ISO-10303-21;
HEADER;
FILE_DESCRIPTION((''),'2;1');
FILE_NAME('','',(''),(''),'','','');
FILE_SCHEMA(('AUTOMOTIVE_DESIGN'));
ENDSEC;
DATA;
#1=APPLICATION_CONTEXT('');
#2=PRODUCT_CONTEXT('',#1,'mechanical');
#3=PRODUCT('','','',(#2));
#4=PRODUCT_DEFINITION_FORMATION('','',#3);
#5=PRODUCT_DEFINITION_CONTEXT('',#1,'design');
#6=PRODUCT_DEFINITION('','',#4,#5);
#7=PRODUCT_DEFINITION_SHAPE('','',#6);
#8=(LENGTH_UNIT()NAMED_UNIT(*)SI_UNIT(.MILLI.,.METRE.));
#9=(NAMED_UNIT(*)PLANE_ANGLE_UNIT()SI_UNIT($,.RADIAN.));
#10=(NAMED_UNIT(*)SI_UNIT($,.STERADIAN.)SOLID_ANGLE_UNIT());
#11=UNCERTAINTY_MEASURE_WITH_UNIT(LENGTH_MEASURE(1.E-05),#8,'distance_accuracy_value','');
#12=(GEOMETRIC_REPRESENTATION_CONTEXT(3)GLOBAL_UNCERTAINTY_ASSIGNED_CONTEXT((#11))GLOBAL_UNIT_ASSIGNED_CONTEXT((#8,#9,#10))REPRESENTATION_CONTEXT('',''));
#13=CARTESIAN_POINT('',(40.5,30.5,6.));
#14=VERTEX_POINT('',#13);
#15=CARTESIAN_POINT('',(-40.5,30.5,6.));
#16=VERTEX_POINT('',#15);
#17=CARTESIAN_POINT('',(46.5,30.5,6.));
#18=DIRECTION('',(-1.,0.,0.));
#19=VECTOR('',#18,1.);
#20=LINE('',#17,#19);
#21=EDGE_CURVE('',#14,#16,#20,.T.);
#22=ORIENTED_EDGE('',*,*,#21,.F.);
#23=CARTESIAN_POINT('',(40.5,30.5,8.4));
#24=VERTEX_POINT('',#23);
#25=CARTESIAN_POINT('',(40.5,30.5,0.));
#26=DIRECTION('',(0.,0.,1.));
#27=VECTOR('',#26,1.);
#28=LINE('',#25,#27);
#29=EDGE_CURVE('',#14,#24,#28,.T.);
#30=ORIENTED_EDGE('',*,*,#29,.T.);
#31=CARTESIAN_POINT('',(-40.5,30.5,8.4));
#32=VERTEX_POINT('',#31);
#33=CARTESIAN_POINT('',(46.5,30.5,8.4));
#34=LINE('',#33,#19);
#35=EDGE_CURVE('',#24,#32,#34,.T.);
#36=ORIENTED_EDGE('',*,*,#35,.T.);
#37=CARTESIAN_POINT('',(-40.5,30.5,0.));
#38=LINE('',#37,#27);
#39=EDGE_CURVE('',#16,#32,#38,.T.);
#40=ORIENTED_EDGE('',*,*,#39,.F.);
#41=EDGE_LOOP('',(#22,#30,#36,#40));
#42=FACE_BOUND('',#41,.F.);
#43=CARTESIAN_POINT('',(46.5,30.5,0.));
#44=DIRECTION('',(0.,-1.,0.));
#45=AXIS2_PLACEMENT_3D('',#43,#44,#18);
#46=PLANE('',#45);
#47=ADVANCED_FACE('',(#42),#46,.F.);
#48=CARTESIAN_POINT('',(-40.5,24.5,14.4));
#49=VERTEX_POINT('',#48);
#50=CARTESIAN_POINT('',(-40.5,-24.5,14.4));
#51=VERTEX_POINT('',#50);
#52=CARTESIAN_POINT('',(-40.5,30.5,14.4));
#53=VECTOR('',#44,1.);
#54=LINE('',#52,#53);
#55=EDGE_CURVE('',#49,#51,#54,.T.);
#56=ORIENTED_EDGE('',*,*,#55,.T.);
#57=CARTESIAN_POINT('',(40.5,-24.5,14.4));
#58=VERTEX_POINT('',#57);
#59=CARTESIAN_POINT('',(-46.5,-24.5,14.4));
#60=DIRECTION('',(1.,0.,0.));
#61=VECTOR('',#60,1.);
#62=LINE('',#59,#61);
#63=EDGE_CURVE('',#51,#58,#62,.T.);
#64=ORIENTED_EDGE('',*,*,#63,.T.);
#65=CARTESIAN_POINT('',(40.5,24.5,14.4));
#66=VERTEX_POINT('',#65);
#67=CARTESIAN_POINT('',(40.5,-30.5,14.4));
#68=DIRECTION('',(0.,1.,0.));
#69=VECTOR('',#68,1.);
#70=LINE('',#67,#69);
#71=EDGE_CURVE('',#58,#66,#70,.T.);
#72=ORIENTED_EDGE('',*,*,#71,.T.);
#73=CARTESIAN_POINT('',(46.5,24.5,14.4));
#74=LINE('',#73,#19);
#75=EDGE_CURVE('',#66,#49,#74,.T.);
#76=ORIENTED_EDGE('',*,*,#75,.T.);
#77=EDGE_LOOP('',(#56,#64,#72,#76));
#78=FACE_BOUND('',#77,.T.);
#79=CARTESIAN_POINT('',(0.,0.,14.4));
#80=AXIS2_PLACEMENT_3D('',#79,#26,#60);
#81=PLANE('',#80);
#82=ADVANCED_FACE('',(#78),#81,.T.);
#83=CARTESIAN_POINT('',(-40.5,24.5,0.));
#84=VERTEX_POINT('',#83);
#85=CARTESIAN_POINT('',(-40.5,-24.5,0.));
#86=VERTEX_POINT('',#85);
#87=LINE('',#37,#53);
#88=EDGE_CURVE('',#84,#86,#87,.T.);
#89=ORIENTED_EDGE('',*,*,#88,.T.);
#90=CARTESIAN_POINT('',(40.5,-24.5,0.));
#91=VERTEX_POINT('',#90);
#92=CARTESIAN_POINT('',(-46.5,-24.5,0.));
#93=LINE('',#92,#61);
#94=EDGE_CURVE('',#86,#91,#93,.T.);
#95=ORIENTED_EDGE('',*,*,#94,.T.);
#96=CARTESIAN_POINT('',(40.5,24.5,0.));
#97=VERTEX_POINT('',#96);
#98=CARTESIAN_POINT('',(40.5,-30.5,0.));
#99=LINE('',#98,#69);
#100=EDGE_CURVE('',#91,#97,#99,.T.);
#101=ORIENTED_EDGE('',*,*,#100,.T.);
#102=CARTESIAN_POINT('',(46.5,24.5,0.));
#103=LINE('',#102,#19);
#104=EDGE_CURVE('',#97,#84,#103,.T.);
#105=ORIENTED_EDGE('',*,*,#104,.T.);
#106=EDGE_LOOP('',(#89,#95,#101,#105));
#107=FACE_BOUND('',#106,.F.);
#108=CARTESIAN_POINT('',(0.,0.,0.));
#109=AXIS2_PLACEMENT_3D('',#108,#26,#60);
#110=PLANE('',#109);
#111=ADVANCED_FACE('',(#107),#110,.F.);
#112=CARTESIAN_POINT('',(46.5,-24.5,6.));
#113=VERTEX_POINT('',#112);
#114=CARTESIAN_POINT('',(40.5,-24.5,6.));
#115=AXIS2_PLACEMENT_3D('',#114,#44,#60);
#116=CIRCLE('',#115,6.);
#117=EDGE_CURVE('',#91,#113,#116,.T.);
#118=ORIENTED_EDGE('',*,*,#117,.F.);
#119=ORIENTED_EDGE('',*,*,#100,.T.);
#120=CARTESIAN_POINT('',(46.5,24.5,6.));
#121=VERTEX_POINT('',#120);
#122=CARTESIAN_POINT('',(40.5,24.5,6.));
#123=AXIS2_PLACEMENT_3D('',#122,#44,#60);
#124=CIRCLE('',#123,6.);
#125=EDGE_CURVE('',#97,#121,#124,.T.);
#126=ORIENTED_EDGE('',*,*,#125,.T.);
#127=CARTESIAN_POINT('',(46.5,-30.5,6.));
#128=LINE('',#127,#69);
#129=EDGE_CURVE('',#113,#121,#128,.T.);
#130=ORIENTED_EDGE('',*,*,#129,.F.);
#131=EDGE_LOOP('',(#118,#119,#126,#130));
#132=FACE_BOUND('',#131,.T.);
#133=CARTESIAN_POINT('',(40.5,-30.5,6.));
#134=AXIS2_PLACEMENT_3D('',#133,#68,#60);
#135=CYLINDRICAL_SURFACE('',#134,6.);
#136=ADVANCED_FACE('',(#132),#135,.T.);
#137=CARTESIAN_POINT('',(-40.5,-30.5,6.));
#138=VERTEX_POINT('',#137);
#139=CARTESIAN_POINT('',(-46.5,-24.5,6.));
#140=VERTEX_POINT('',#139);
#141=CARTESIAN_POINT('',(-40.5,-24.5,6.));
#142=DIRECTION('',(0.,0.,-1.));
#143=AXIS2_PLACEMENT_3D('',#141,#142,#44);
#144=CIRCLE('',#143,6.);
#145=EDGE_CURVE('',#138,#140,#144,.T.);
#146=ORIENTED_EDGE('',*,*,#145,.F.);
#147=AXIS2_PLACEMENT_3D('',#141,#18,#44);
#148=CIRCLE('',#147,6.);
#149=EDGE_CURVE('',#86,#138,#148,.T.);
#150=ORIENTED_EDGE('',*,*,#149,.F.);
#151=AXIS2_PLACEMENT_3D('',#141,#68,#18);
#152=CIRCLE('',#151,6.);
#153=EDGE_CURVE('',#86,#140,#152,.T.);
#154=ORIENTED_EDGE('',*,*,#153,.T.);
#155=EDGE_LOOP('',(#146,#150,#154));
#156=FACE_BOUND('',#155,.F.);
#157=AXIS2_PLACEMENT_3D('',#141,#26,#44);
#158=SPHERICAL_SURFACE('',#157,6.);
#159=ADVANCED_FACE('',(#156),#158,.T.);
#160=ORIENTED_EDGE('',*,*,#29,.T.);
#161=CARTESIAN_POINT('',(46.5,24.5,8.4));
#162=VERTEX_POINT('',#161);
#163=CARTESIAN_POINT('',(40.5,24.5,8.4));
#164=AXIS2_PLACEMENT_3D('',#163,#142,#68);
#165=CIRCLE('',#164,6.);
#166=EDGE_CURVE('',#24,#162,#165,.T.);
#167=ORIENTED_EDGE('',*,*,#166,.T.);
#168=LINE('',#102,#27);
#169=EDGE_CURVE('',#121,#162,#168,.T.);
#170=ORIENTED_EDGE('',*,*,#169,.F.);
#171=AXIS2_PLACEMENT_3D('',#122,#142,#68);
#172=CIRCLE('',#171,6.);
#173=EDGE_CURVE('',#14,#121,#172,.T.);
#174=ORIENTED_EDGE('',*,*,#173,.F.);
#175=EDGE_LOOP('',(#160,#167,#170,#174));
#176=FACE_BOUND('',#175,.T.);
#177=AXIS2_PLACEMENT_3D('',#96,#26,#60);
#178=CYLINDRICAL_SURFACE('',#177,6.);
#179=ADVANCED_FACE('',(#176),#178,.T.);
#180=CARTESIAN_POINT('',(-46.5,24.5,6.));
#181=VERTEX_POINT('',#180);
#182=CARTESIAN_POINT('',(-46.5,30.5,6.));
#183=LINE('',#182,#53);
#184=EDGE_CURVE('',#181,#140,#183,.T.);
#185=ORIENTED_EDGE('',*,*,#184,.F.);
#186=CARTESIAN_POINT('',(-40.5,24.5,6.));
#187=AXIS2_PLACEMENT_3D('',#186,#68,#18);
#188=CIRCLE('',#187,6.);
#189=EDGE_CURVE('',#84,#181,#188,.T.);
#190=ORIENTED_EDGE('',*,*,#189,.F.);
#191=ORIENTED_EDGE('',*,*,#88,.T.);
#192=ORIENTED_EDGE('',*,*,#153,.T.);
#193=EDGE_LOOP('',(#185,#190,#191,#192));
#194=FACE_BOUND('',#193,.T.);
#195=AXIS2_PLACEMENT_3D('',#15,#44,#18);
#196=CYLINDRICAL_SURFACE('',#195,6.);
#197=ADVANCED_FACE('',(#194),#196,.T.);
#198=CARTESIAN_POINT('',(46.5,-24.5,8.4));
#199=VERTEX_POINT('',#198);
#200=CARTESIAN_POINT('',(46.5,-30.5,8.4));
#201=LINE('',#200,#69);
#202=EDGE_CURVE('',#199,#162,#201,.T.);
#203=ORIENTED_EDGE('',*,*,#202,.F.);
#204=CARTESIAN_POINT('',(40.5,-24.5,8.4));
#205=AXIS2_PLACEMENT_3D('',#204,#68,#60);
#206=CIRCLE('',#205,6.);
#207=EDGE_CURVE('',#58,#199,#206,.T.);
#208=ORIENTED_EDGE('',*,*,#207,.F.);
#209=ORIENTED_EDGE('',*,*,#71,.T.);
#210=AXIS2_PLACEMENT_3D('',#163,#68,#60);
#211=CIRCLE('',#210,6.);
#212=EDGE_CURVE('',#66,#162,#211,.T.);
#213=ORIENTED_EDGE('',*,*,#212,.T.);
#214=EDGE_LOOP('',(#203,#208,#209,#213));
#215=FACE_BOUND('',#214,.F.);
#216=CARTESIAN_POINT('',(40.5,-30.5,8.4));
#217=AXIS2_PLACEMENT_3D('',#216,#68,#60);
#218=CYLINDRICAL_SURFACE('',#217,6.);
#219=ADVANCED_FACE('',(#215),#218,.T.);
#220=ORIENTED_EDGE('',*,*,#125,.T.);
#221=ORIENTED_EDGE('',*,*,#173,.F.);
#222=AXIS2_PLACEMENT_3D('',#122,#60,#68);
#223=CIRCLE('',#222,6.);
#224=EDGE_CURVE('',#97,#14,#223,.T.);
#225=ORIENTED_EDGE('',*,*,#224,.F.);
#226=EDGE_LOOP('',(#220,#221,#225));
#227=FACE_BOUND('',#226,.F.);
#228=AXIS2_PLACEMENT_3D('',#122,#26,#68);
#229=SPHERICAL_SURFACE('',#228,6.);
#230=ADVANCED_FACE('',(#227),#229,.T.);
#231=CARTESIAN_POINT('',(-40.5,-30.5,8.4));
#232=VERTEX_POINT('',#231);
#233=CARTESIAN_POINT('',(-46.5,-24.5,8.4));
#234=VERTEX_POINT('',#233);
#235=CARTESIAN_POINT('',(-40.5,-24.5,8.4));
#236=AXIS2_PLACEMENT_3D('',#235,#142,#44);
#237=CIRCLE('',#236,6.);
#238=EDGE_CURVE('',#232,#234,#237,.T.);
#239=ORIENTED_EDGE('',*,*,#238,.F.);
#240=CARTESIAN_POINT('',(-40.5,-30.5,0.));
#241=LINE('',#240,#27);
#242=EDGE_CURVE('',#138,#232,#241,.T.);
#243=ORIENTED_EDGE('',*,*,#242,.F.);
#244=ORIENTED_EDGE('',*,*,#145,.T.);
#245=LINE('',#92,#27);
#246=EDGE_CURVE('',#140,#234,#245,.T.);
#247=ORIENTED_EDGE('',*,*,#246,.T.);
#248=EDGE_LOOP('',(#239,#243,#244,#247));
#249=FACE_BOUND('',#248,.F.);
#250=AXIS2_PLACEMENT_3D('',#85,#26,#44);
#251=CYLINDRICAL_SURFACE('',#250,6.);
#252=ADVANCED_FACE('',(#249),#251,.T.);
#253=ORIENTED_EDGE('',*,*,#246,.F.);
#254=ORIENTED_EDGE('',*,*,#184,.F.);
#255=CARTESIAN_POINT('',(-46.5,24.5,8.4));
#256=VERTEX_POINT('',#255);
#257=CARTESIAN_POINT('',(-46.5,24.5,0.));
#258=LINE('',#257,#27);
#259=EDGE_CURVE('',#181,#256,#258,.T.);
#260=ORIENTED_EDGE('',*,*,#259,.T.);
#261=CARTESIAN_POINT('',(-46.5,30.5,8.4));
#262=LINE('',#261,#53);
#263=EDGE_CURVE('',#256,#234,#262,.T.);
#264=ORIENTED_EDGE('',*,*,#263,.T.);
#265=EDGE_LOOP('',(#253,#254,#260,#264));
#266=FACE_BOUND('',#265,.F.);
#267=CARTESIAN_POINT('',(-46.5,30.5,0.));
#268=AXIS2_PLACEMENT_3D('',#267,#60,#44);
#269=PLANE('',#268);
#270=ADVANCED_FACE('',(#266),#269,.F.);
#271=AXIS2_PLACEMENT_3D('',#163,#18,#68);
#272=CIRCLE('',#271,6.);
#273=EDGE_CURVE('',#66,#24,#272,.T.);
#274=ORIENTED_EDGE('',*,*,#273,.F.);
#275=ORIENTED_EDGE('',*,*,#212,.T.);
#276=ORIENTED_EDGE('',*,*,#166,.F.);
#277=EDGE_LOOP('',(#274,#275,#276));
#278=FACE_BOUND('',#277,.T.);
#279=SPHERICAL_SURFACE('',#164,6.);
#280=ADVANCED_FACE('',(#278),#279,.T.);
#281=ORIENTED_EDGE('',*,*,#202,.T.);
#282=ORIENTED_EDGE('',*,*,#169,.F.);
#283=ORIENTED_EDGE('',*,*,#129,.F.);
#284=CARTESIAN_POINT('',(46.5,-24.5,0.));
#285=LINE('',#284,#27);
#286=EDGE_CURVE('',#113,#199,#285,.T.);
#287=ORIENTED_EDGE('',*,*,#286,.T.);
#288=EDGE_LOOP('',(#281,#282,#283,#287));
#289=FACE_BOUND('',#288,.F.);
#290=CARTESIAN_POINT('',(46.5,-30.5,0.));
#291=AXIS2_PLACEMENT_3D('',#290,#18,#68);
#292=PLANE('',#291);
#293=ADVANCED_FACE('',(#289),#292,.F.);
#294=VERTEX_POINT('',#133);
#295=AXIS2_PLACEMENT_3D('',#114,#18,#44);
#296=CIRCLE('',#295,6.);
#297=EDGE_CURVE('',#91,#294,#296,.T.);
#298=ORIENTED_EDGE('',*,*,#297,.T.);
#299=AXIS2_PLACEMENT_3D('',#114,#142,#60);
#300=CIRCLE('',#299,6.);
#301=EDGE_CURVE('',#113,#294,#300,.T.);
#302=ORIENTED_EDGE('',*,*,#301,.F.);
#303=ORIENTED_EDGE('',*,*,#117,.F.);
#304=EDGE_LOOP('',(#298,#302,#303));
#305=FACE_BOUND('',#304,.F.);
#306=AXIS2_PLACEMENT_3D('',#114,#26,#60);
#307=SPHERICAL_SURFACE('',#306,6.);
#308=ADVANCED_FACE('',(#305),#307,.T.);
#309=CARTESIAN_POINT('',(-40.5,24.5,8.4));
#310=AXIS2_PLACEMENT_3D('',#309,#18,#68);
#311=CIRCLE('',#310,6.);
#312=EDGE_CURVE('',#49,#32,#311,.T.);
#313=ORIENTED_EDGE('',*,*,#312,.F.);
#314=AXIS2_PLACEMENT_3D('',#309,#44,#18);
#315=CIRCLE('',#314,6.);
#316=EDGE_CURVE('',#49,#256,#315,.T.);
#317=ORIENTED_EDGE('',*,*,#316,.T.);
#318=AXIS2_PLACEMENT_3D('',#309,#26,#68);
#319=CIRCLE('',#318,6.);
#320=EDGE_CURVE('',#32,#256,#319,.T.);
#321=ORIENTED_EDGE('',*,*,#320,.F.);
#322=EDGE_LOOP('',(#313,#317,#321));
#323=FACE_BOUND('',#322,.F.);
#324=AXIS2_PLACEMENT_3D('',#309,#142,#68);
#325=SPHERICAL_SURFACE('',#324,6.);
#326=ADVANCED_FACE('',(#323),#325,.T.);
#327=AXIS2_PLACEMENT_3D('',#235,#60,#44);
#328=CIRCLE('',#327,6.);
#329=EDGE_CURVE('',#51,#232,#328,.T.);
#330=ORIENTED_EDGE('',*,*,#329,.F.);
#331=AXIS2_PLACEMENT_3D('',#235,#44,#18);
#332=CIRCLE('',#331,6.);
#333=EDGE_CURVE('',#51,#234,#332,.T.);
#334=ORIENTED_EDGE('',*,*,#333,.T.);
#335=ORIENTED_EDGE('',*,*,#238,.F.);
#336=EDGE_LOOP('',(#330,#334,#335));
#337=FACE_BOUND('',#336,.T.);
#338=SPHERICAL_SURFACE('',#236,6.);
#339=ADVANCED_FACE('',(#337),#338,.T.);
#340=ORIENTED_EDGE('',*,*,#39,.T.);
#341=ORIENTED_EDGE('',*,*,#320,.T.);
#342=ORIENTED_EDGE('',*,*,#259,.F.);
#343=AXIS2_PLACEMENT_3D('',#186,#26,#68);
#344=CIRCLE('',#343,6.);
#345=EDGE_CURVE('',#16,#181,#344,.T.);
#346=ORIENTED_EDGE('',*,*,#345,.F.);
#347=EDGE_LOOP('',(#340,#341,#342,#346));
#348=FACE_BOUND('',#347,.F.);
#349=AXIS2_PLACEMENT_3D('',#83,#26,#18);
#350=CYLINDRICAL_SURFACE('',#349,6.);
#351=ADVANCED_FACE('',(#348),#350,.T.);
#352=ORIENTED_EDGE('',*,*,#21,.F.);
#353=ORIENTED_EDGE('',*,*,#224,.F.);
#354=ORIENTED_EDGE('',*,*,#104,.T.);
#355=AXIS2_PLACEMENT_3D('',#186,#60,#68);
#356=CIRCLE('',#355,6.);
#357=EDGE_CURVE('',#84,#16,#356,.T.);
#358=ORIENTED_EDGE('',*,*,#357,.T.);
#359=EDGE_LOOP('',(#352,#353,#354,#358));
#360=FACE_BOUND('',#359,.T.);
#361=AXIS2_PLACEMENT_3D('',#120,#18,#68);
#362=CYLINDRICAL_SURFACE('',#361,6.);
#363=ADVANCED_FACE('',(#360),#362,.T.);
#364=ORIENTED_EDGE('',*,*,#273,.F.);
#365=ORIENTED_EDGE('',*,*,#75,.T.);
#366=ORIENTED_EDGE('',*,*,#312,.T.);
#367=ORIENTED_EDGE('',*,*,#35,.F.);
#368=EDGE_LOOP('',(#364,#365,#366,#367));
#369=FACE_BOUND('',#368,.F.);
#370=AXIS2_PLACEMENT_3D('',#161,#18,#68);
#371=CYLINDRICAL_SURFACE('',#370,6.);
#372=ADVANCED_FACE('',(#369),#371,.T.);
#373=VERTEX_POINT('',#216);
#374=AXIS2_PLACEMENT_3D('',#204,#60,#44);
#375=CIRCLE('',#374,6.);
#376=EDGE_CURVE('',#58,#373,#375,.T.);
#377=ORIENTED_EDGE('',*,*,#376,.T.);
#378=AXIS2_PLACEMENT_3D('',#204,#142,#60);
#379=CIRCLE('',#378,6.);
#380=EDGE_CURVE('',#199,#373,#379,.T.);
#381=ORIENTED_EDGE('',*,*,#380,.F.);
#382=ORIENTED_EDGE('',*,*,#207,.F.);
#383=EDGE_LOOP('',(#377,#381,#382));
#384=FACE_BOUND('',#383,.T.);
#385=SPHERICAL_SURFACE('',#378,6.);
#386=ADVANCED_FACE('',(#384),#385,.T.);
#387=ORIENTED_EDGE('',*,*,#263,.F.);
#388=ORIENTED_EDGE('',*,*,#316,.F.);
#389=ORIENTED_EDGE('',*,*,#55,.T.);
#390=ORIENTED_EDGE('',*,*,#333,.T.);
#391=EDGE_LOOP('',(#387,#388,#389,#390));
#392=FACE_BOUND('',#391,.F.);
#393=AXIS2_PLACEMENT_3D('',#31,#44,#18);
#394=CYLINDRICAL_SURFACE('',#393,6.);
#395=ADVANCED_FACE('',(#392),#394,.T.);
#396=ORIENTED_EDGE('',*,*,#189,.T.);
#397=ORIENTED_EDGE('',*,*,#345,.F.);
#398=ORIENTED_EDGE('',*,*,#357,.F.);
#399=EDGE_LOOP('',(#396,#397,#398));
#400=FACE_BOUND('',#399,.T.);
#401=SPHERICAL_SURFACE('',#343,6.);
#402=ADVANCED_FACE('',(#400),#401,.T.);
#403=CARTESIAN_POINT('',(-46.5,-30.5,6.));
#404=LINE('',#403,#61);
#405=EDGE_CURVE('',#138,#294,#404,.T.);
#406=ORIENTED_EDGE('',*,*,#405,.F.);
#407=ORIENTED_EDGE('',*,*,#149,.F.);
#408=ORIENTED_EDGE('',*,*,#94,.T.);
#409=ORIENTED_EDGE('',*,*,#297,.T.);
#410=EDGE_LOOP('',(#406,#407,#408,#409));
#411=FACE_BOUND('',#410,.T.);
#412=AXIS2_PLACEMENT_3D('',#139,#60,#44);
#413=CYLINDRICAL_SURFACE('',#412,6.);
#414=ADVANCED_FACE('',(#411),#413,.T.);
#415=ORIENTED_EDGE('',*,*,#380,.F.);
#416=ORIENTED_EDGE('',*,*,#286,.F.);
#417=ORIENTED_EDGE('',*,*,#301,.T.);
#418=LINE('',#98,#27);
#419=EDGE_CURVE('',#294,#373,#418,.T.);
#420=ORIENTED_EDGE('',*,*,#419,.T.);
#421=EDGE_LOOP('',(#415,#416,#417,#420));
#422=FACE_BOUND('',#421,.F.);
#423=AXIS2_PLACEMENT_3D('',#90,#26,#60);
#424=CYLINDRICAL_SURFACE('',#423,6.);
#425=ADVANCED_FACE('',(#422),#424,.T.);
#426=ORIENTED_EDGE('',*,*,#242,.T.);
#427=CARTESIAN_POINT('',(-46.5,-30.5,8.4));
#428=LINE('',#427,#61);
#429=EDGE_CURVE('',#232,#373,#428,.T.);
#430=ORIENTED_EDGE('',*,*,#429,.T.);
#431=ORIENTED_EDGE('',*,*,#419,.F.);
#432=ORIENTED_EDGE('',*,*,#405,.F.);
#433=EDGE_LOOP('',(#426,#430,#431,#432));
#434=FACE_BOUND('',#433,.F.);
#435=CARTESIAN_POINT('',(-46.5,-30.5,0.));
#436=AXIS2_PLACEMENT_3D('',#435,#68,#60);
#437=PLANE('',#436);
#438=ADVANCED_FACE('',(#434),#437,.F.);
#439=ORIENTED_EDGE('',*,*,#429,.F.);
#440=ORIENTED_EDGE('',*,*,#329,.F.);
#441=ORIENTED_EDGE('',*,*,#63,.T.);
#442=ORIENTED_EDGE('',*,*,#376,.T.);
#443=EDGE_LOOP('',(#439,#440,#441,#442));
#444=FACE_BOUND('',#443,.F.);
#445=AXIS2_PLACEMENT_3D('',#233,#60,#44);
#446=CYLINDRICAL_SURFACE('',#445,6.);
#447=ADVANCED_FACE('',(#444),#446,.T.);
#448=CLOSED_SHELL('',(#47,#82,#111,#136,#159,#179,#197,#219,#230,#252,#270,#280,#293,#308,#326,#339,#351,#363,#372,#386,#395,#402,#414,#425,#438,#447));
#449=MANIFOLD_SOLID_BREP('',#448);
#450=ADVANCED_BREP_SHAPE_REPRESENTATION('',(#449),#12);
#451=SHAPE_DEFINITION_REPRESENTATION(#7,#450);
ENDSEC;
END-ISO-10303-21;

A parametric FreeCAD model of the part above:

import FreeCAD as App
import Part
import Sketcher

V = App.Vector
Q = App.Units.Quantity


def add_polygon(sketch, points):
    """Adds a closed chain of lines whose ends are joined by coincident constraints."""
    first, n = sketch.GeometryCount, len(points)
    for a, b in zip(points, points[1:] + points[:1]):
        sketch.addGeometry(Part.LineSegment(App.Vector(*a, 0), App.Vector(*b, 0)), False)
    for i in range(n):
        sketch.addConstraint(Sketcher.Constraint("Coincident", first + i, 2, first + (i + 1) % n, 1))

doc = App.newDocument("Part")
body = doc.addObject("PartDesign::Body", "Body")

sketch1 = body.newObject("Sketcher::SketchObject", "Sketch")
sketch1.AttachmentSupport = (doc.getObject("XY_Plane"), [""])
sketch1.MapMode = "FlatFace"
add_polygon(sketch1, [(46, -30), (46, 30), (-46, 30), (-46, -30)])
sketch1.addConstraint(Sketcher.Constraint("Vertical", 0))
sketch1.addConstraint(Sketcher.Constraint("Horizontal", 1))
sketch1.addConstraint(Sketcher.Constraint("Vertical", 2))
sketch1.addConstraint(Sketcher.Constraint("Horizontal", 3))
sketch1.addConstraint(Sketcher.Constraint("Symmetric", 0, 2, 2, 2, -1, 1))
sketch1.addConstraint(Sketcher.Constraint("DistanceX", 1, 2, 1, 1, Q("93 mm")))
sketch1.addConstraint(Sketcher.Constraint("DistanceY", 0, 1, 0, 2, Q("61 mm")))
pad1 = body.newObject("PartDesign::Pad", "Pad")
pad1.Profile = sketch1
pad1.Length = 14.4
doc.recompute()

fillet = body.newObject("PartDesign::Fillet", "Fillet")
fillet.Base = (pad1, ["Edge1"])
fillet.UseAllEdges = True
fillet.Radius = 6

doc.recompute()
